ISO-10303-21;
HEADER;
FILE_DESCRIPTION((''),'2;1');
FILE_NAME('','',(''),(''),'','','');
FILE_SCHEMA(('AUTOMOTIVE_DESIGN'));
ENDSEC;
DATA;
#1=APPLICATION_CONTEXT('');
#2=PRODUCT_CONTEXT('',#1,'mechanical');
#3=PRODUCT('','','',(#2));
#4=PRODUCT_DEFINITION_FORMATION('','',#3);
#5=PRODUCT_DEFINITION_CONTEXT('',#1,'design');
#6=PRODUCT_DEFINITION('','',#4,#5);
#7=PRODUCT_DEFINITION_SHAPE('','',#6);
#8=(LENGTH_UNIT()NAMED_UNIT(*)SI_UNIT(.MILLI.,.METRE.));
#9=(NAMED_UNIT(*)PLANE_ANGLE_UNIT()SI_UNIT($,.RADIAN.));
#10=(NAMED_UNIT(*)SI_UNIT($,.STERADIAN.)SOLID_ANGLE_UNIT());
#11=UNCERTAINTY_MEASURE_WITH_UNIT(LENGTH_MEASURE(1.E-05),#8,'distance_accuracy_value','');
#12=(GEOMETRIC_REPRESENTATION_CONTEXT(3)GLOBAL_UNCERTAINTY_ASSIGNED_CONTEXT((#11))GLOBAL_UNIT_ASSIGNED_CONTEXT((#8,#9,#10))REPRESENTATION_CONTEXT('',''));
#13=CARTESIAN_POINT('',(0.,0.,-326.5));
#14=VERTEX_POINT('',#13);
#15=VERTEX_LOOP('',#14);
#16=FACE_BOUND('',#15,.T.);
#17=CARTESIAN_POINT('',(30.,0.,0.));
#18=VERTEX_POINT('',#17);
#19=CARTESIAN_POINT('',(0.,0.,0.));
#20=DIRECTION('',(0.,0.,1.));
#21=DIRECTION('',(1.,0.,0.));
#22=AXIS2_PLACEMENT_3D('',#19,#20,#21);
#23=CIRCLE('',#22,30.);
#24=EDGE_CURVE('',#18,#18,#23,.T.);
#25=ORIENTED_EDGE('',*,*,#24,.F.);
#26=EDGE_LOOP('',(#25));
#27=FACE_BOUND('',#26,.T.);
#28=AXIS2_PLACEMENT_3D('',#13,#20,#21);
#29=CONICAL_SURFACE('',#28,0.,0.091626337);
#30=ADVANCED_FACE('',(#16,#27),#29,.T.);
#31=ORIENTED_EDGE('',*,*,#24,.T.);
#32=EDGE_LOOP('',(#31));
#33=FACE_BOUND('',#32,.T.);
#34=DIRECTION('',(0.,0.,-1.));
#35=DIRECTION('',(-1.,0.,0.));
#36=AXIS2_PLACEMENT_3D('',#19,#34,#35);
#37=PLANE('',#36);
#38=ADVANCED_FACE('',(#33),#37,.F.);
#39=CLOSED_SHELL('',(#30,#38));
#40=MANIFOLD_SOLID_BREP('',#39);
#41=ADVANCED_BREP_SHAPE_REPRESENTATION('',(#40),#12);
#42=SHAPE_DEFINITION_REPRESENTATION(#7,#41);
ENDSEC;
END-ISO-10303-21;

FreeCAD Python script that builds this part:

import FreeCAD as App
import Part
import Sketcher

V = App.Vector
Q = App.Units.Quantity

doc = App.newDocument("Part")
body = doc.addObject("PartDesign::Body", "Body")

# Sketch on XZ plane
sketch1 = doc.addObject("Sketcher::SketchObject", "Sketch")
body.addObject(sketch1)
sketch1.AttachmentSupport = (doc.XZ_Plane, [""])
sketch1.MapMode = "FlatFace"
sketch1.addGeometry([
    Part.LineSegment(V(-30, 0, 0), V(0, 0, 0)),
    Part.LineSegment(V(0, 0, 0), V(0, -326.5, 0)),
    Part.LineSegment(V(0, -326.5, 0), V(-30, 0, 0)),
], False)
sketch1.addConstraint([
    Sketcher.Constraint("Coincident", 0, 2, 1, 1),
    Sketcher.Constraint("Coincident", 1, 2, 2, 1),
    Sketcher.Constraint("Coincident", 2, 2, 0, 1),
    Sketcher.Constraint("Horizontal", 0),
    Sketcher.Constraint("Vertical", 1),
    Sketcher.Constraint("Coincident", 0, 2, -1, 1),
    Sketcher.Constraint("DistanceX", 0, 1, 0, 2, Q("30 mm")),
    Sketcher.Constraint("DistanceY", 1, 2, 1, 1, Q("326.5 mm")),
])
revolution = doc.addObject("PartDesign::Revolution", "Revolution")
body.addObject(revolution)
revolution.Profile = sketch1
revolution.ReferenceAxis = (sketch1, ["V_Axis"])
revolution.Angle = 360

doc.recompute()
